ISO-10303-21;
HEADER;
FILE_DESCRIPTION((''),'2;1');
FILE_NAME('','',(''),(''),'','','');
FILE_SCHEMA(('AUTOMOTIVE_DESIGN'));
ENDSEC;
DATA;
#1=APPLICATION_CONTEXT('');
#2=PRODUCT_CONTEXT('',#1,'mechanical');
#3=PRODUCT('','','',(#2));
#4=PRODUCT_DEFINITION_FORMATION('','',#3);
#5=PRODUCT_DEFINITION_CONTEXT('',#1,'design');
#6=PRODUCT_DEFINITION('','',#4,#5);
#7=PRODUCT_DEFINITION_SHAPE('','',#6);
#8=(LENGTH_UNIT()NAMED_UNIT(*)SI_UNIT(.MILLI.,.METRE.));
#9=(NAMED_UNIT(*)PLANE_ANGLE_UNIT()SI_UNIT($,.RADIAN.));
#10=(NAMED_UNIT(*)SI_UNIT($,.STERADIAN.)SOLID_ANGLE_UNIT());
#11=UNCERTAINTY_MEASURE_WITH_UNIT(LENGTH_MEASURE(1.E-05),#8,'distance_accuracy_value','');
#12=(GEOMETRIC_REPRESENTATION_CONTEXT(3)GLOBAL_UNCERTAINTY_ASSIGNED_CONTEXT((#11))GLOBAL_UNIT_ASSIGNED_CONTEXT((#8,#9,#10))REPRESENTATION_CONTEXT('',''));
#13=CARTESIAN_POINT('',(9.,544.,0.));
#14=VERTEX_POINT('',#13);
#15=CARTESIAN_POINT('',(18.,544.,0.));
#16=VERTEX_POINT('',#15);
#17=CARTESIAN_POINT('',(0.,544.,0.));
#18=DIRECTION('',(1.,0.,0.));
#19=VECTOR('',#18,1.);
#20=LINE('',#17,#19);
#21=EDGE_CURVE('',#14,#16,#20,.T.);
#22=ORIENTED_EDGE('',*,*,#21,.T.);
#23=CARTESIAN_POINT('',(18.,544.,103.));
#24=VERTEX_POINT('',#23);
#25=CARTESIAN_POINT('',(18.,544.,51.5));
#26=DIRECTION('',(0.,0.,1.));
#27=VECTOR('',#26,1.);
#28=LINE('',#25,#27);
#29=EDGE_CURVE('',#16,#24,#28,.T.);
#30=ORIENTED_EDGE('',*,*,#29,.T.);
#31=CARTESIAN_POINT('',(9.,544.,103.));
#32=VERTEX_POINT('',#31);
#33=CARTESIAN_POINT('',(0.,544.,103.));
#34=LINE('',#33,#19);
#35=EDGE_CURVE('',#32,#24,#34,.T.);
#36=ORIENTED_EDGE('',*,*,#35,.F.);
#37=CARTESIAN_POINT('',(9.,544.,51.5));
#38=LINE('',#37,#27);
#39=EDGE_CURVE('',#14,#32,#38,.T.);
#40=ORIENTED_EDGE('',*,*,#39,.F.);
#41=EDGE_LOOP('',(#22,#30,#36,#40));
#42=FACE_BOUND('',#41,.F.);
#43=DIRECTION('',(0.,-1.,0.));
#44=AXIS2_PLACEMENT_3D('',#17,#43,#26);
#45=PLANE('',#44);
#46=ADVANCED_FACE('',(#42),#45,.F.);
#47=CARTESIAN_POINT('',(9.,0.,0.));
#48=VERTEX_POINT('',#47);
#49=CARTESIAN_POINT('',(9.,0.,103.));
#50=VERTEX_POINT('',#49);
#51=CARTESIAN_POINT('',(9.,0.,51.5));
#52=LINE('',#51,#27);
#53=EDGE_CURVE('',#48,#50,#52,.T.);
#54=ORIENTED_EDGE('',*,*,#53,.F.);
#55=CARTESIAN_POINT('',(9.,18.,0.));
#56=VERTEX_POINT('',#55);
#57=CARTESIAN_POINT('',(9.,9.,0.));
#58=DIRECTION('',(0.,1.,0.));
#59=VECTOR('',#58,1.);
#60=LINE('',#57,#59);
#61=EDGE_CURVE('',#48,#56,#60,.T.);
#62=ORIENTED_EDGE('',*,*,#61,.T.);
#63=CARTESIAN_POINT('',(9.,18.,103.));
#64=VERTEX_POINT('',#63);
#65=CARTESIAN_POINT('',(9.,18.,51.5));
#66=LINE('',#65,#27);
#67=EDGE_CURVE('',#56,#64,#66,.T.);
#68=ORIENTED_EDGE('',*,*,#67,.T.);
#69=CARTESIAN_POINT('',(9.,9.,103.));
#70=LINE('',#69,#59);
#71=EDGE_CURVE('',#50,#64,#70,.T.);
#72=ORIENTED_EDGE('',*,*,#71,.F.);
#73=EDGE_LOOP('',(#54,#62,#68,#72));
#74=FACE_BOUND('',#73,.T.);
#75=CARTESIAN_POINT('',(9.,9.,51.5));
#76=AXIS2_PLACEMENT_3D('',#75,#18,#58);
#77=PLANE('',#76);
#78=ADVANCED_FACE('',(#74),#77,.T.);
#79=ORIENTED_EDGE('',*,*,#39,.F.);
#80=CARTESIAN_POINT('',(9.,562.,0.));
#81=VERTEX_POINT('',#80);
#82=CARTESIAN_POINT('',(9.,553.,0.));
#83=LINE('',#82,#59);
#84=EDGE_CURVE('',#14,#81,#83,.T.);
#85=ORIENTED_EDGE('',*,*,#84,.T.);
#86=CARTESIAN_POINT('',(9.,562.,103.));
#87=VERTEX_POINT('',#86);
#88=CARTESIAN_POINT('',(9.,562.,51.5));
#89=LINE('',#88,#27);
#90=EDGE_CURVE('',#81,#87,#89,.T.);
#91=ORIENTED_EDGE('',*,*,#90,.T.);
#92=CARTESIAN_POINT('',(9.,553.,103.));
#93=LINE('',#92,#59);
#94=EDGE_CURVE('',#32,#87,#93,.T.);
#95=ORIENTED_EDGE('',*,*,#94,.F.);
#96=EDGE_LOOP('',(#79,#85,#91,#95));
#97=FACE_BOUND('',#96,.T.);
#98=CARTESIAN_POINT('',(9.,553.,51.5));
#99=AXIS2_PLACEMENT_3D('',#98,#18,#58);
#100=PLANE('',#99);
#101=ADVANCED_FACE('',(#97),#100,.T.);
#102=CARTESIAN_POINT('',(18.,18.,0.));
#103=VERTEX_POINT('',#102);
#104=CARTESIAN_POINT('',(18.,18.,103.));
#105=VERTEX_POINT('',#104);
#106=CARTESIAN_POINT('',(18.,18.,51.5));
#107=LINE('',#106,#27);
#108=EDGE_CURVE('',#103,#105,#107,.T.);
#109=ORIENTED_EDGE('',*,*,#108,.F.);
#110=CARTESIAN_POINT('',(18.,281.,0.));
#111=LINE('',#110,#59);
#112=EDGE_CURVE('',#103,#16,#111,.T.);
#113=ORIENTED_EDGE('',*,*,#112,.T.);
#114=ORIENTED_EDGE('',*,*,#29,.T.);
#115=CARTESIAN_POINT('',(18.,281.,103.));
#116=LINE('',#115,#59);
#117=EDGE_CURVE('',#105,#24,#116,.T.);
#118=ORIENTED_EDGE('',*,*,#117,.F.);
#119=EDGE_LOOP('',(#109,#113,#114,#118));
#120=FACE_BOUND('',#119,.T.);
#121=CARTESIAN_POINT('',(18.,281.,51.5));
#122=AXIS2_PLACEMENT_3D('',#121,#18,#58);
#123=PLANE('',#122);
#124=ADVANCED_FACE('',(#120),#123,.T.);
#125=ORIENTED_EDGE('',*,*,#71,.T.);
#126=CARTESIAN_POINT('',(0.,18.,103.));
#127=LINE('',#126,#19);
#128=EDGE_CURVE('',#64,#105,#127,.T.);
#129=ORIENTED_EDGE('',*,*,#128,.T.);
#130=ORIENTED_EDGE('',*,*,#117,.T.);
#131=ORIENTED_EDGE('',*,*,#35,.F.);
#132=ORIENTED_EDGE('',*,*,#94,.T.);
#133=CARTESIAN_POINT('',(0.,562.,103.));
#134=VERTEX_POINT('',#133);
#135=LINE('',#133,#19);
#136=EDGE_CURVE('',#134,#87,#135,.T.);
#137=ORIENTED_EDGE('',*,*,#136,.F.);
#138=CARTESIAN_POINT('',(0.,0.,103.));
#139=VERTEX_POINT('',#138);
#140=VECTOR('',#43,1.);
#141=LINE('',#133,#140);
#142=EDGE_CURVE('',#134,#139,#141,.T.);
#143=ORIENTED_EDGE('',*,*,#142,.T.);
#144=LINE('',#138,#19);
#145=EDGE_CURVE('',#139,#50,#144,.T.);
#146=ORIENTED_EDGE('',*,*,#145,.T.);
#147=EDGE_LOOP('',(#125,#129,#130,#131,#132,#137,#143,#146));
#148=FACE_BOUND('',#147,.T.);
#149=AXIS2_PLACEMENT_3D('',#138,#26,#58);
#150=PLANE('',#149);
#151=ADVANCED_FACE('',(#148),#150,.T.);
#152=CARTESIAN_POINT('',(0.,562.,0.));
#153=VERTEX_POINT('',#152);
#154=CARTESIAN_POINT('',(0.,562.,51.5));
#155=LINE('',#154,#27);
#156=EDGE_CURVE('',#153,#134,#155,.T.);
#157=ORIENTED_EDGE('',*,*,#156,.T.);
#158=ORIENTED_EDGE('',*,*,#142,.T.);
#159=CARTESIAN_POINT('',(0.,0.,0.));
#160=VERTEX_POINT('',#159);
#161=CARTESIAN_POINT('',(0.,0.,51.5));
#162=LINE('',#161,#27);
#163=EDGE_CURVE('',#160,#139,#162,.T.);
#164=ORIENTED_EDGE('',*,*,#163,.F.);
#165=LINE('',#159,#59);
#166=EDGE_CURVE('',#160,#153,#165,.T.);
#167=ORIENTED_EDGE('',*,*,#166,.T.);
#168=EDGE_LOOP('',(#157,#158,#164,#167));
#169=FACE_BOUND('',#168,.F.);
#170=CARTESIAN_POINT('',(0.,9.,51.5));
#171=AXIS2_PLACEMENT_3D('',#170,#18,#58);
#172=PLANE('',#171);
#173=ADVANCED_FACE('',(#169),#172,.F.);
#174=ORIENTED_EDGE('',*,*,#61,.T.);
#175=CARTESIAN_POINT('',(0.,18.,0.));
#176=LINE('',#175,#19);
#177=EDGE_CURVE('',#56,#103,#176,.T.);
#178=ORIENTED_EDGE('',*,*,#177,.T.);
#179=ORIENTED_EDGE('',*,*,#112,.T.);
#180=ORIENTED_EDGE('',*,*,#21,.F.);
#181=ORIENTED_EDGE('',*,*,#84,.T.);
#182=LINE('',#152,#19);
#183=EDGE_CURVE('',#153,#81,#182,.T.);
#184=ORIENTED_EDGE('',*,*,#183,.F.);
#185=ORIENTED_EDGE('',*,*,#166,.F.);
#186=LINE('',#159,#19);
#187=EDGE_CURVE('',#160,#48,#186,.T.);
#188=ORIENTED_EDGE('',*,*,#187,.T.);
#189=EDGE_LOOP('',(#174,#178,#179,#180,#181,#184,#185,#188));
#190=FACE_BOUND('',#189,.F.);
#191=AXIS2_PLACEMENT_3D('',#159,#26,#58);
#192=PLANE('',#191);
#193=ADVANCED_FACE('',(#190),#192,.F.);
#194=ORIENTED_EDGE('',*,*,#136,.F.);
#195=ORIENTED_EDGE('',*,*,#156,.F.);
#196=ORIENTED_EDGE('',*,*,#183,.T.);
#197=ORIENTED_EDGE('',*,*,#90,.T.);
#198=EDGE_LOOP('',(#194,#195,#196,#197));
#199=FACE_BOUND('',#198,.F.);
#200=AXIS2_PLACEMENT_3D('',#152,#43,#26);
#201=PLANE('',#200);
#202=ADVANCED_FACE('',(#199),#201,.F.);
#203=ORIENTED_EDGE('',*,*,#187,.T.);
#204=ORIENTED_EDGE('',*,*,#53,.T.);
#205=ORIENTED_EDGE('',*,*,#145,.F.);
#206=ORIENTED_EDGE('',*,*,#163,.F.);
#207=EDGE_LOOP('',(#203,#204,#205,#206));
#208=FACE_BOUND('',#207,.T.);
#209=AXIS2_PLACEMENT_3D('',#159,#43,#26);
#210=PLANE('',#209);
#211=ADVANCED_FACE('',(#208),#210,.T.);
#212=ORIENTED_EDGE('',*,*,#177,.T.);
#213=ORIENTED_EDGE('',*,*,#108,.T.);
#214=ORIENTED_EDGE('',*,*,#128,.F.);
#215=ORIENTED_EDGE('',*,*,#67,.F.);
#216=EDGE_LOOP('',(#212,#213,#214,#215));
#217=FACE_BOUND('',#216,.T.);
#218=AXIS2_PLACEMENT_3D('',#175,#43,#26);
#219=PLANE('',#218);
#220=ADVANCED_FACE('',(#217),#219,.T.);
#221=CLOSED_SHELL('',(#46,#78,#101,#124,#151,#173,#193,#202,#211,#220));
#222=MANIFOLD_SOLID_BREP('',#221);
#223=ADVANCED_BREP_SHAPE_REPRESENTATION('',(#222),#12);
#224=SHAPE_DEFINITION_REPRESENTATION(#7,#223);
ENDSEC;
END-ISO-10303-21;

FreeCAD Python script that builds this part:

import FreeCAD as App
import Part
import Sketcher
from FreeCAD import Vector

doc = App.newDocument("Part")
body = doc.addObject("PartDesign::Body", "Body")

sketch1 = body.newObject("Sketcher::SketchObject", "Sketch")
sketch1.AttachmentSupport = (doc.getObject("YZ_Plane"), [""])
sketch1.MapMode = "FlatFace"
sketch1.addGeometry([
    Part.LineSegment(Vector(18, 103, 0), Vector(18, 0, 0)),
    Part.LineSegment(Vector(18, 0, 0), Vector(544, 0, 0)),
    Part.LineSegment(Vector(544, 0, 0), Vector(544, 103, 0)),
    Part.LineSegment(Vector(544, 103, 0), Vector(18, 103, 0)),
], False)
sketch1.addConstraint([
    Sketcher.Constraint("Coincident", 0, 2, 1, 1),
    Sketcher.Constraint("Coincident", 1, 2, 2, 1),
    Sketcher.Constraint("Coincident", 2, 2, 3, 1),
    Sketcher.Constraint("Coincident", 3, 2, 0, 1),
    Sketcher.Constraint("Vertical", 0),
    Sketcher.Constraint("Horizontal", 1),
    Sketcher.Constraint("Vertical", 2),
    Sketcher.Constraint("Horizontal", 3),
    Sketcher.Constraint("PointOnObject", 0, 2, -1),
    Sketcher.Constraint("DistanceX", 1, 1, 1, 2, 526.0),
    Sketcher.Constraint("DistanceY", 0, 2, 0, 1, 103.0),
    Sketcher.Constraint("DistanceX", -1, 1, 0, 2, 18.0),
])
pad1 = body.newObject("PartDesign::Pad", "Pad")
pad1.Profile = sketch1
pad1.Length = 18

sketch2 = body.newObject("Sketcher::SketchObject", "Sketch001")
sketch2.AttachmentSupport = (doc.getObject("YZ_Plane"), [""])
sketch2.MapMode = "FlatFace"
sketch2.addGeometry([
    Part.LineSegment(Vector(0, 103, 0), Vector(0, 0, 0)),
    Part.LineSegment(Vector(0, 0, 0), Vector(18, 0, 0)),
    Part.LineSegment(Vector(18, 0, 0), Vector(18, 103, 0)),
    Part.LineSegment(Vector(18, 103, 0), Vector(0, 103, 0)),
    Part.LineSegment(Vector(544, 103, 0), Vector(544, 0, 0)),
    Part.LineSegment(Vector(544, 0, 0), Vector(562, 0, 0)),
    Part.LineSegment(Vector(562, 0, 0), Vector(562, 103, 0)),
    Part.LineSegment(Vector(562, 103, 0), Vector(544, 103, 0)),
], False)
sketch2.addConstraint([
    Sketcher.Constraint("Coincident", 0, 2, 1, 1),
    Sketcher.Constraint("Coincident", 1, 2, 2, 1),
    Sketcher.Constraint("Coincident", 2, 2, 3, 1),
    Sketcher.Constraint("Coincident", 3, 2, 0, 1),
    Sketcher.Constraint("Coincident", 4, 2, 5, 1),
    Sketcher.Constraint("Coincident", 5, 2, 6, 1),
    Sketcher.Constraint("Coincident", 6, 2, 7, 1),
    Sketcher.Constraint("Coincident", 7, 2, 4, 1),
    Sketcher.Constraint("Vertical", 0),
    Sketcher.Constraint("Horizontal", 1),
    Sketcher.Constraint("Vertical", 2),
    Sketcher.Constraint("Horizontal", 3),
    Sketcher.Constraint("Vertical", 4),
    Sketcher.Constraint("Horizontal", 5),
    Sketcher.Constraint("Vertical", 6),
    Sketcher.Constraint("Horizontal", 7),
    Sketcher.Constraint("Coincident", 0, 2, -1, 1),
    Sketcher.Constraint("PointOnObject", 4, 2, -1),
    Sketcher.Constraint("Horizontal", 3, 2, 6, 2),
    Sketcher.Constraint("Equal", 3, 5),
    Sketcher.Constraint("DistanceX", 1, 1, 1, 2, 18.0),
    Sketcher.Constraint("DistanceY", 0, 2, 0, 1, 103.0),
    Sketcher.Constraint("DistanceX", -1, 1, 4, 2, 544.0),
])
pad2 = body.newObject("PartDesign::Pad", "Pad001")
pad2.Profile = sketch2
pad2.Length = 9

doc.recompute()
